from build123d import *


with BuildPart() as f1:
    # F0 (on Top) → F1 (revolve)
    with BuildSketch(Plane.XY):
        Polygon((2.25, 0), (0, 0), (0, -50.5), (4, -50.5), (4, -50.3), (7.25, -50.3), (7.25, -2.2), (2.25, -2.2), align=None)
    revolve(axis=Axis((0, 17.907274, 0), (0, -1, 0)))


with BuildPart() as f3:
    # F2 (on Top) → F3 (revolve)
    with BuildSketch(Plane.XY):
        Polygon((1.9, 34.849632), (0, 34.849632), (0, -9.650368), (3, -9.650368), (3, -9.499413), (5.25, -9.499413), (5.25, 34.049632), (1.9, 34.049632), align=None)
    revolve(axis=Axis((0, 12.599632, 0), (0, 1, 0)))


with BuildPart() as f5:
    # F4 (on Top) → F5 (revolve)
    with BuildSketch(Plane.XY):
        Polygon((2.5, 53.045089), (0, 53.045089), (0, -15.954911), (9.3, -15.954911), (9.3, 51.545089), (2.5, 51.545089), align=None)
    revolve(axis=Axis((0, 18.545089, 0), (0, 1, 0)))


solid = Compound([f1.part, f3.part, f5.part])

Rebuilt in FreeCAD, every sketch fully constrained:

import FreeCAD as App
import Part
import Sketcher

V = App.Vector
Q = App.Units.Quantity


def add_polygon(sketch, points):
    """Adds a closed chain of lines whose ends are joined by coincident constraints."""
    first, n = sketch.GeometryCount, len(points)
    for a, b in zip(points, points[1:] + points[:1]):
        sketch.addGeometry(Part.LineSegment(App.Vector(*a, 0), App.Vector(*b, 0)), False)
    for i in range(n):
        sketch.addConstraint(Sketcher.Constraint("Coincident", first + i, 2, first + (i + 1) % n, 1))

doc = App.newDocument("Part")
body = doc.addObject("PartDesign::Body", "Body")

# Sketch on XY plane
sketch1 = body.newObject("Sketcher::SketchObject", "Sketch")
sketch1.AttachmentSupport = (doc.getObject("XY_Plane"), [""])
sketch1.MapMode = "FlatFace"
add_polygon(sketch1, [(2.25, 0), (0, 0), (0, -50.5), (4, -50.5), (4, -50.3), (7.25, -50.3), (7.25, -2.2), (2.25, -2.2)])  # lines 0-7
sketch1.addConstraint([
    Sketcher.Constraint("Horizontal", 0),
    Sketcher.Constraint("Vertical", 1),
    Sketcher.Constraint("Horizontal", 2),
    Sketcher.Constraint("Vertical", 3),
    Sketcher.Constraint("Horizontal", 4),
    Sketcher.Constraint("Vertical", 5),
    Sketcher.Constraint("Horizontal", 6),
    Sketcher.Constraint("Vertical", 7),
    Sketcher.Constraint("Coincident", 0, 2, -1, 1),
    Sketcher.Constraint("DistanceX", 2, 1, 2, 2, Q("4 mm")),
    Sketcher.Constraint("DistanceX", 6, 2, 6, 1, Q("5 mm")),
    Sketcher.Constraint("DistanceY", 1, 2, 1, 1, Q("50.5 mm")),
    Sketcher.Constraint("DistanceY", 3, 1, 3, 2, Q("0.2 mm")),
    Sketcher.Constraint("DistanceY", 5, 1, 5, 2, Q("48.1 mm")),
    Sketcher.Constraint("DistanceX", 0, 2, 0, 1, Q("2.25 mm")),
])
revolution = body.newObject("PartDesign::Revolution", "Revolution")
revolution.Profile = sketch1
revolution.ReferenceAxis = (sketch1, ["V_Axis"])
revolution.Angle = 360
body2 = doc.addObject("PartDesign::Body", "Body001")

# Sketch on XY plane
sketch2 = body2.newObject("Sketcher::SketchObject", "Sketch001")
sketch2.AttachmentSupport = (doc.getObject("XY_Plane001"), [""])
sketch2.MapMode = "FlatFace"
add_polygon(sketch2, [(1.9, 34.85), (0, 34.85), (0, -9.65), (3, -9.65), (3, -9.5), (5.25, -9.5), (5.25, 34.05), (1.9, 34.05)])  # lines 0-7
sketch2.addConstraint([
    Sketcher.Constraint("Horizontal", 0),
    Sketcher.Constraint("Vertical", 1),
    Sketcher.Constraint("Horizontal", 2),
    Sketcher.Constraint("Vertical", 3),
    Sketcher.Constraint("Horizontal", 4),
    Sketcher.Constraint("Vertical", 5),
    Sketcher.Constraint("Horizontal", 6),
    Sketcher.Constraint("Vertical", 7),
    Sketcher.Constraint("PointOnObject", 0, 2, -2),
    Sketcher.Constraint("DistanceX", 2, 1, 2, 2, Q("3 mm")),
    Sketcher.Constraint("DistanceX", 0, 2, 0, 1, Q("1.9 mm")),
    Sketcher.Constraint("DistanceY", 1, 2, 1, 1, Q("44.5 mm")),
    Sketcher.Constraint("DistanceY", 7, 1, 7, 2, Q("0.8 mm")),
    Sketcher.Constraint("DistanceX", 4, 1, 4, 2, Q("2.25 mm")),
    Sketcher.Constraint("DistanceY", 3, 1, 3, 2, Q("0.150955 mm")),
    Sketcher.Constraint("DistanceY", -1, 1, 0, 2, Q("34.849632 mm")),
])
revolution2 = body2.newObject("PartDesign::Revolution", "Revolution001")
revolution2.Profile = sketch2
revolution2.ReferenceAxis = (sketch2, ["V_Axis"])
revolution2.Angle = 360
body3 = doc.addObject("PartDesign::Body", "Body002")

# Sketch on XY plane
sketch3 = body3.newObject("Sketcher::SketchObject", "Sketch002")
sketch3.AttachmentSupport = (doc.getObject("XY_Plane002"), [""])
sketch3.MapMode = "FlatFace"
add_polygon(sketch3, [(2.5, 53), (0, 53), (0, -16), (9.3, -16), (9.3, 51.5), (2.5, 51.5)])  # lines 0-5
sketch3.addConstraint([
    Sketcher.Constraint("Horizontal", 0),
    Sketcher.Constraint("Vertical", 1),
    Sketcher.Constraint("Horizontal", 2),
    Sketcher.Constraint("Vertical", 3),
    Sketcher.Constraint("Horizontal", 4),
    Sketcher.Constraint("Vertical", 5),
    Sketcher.Constraint("PointOnObject", 0, 2, -2),
    Sketcher.Constraint("DistanceY", 1, 2, 1, 1, Q("69 mm")),
    Sketcher.Constraint("DistanceX", 0, 2, 0, 1, Q("2.5 mm")),
    Sketcher.Constraint("DistanceX", 2, 1, 2, 2, Q("9.3 mm")),
    Sketcher.Constraint("DistanceY", 3, 1, 3, 2, Q("67.5 mm")),
    Sketcher.Constraint("DistanceY", -1, 1, 0, 2, Q("53.045089 mm")),
])
revolution3 = body3.newObject("PartDesign::Revolution", "Revolution002")
revolution3.Profile = sketch3
revolution3.ReferenceAxis = (sketch3, ["V_Axis"])
revolution3.Angle = 360

doc.recompute()
